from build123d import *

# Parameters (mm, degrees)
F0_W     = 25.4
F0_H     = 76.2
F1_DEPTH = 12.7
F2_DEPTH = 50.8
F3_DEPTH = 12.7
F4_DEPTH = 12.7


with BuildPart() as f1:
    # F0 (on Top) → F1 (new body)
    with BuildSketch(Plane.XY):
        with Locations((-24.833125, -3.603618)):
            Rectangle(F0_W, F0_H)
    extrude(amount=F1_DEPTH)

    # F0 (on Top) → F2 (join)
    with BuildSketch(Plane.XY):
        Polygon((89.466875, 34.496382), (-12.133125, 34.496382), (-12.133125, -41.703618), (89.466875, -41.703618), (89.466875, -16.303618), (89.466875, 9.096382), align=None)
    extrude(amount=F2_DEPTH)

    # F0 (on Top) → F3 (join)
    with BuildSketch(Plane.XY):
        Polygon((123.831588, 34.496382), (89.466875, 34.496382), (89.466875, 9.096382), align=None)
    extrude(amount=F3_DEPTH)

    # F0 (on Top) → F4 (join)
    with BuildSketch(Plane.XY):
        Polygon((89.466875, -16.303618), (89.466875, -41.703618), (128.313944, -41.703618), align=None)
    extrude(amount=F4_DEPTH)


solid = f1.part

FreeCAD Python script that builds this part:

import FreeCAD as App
import Part
import Sketcher

V = App.Vector
Q = App.Units.Quantity

doc = App.newDocument("Part")
params = doc.addObject("Spreadsheet::Sheet", "Params")
for row, (alias, value) in enumerate([
    ("sketch1_width", "1 in"),
    ("sketch1_height", "3 in"),
    ("pad1_length", "0.5 in"),
    ("sketch2_width", "4 in"),
    ("sketch2_height", "3 in"),
    ("pad2_length", "2 in"),
    ("sketch3_height", "1 in"),
    ("pad3_length", "0.5 in"),
    ("sketch4_height", "1 in"),
    ("pad4_length", "0.5 in"),
], start=1):
    params.set(f"A{row}", alias)
    params.set(f"B{row}", "=" + value)
    params.setAlias(f"B{row}", alias)

body = doc.addObject("PartDesign::Body", "Body")

# Sketch on XY plane
sketch1 = doc.addObject("Sketcher::SketchObject", "Sketch")
body.addObject(sketch1)
sketch1.AttachmentSupport = (doc.XY_Plane, [""])
sketch1.MapMode = "FlatFace"
sketch1.addGeometry(Part.LineSegment(V(-37.533125, 34.496382, 0), V(-37.533125, -41.703618, 0)), False)
sketch1.addGeometry(Part.LineSegment(V(-37.533125, -41.703618, 0), V(-12.133125, -41.703618, 0)), False)
sketch1.addGeometry(Part.LineSegment(V(-12.133125, -41.703618, 0), V(-12.133125, 34.496382, 0)), False)
sketch1.addGeometry(Part.LineSegment(V(-12.133125, 34.496382, 0), V(-37.533125, 34.496382, 0)), False)
sketch1.addConstraint(Sketcher.Constraint("Coincident", 0, 2, 1, 1))
sketch1.addConstraint(Sketcher.Constraint("Coincident", 1, 2, 2, 1))
sketch1.addConstraint(Sketcher.Constraint("Coincident", 2, 2, 3, 1))
sketch1.addConstraint(Sketcher.Constraint("Coincident", 3, 2, 0, 1))
sketch1.addConstraint(Sketcher.Constraint("Vertical", 0))
sketch1.addConstraint(Sketcher.Constraint("Horizontal", 1))
sketch1.addConstraint(Sketcher.Constraint("Vertical", 2))
sketch1.addConstraint(Sketcher.Constraint("Horizontal", 3))
sketch1.addConstraint(Sketcher.Constraint("DistanceX", 1, 1, 1, 2, Q("1 in")))
sketch1.addConstraint(Sketcher.Constraint("DistanceY", 0, 2, 0, 1, Q("3 in")))
sketch1.addConstraint(Sketcher.Constraint("DistanceY", -1, 1, 2, 2, Q("34.496382 mm")))
sketch1.addConstraint(Sketcher.Constraint("DistanceX", 0, 2, -1, 1, Q("37.533125 mm")))
sketch1.setExpression("Constraints[8]", "Params.sketch1_width")
sketch1.setExpression("Constraints[9]", "Params.sketch1_height")
pad1 = doc.addObject("PartDesign::Pad", "Pad")
body.addObject(pad1)
pad1.Profile = sketch1
pad1.setExpression("Length", "Params.pad1_length")

# Sketch on XY plane
sketch2 = doc.addObject("Sketcher::SketchObject", "Sketch001")
body.addObject(sketch2)
sketch2.AttachmentSupport = (doc.XY_Plane, [""])
sketch2.MapMode = "FlatFace"
sketch2.addGeometry(Part.LineSegment(V(89.466875, 34.496382, 0), V(-12.133125, 34.496382, 0)), False)
sketch2.addGeometry(Part.LineSegment(V(-12.133125, 34.496382, 0), V(-12.133125, -41.703618, 0)), False)
sketch2.addGeometry(Part.LineSegment(V(-12.133125, -41.703618, 0), V(89.466875, -41.703618, 0)), False)
sketch2.addGeometry(Part.LineSegment(V(89.466875, -41.703618, 0), V(89.466875, 34.496382, 0)), False)
sketch2.addConstraint(Sketcher.Constraint("Coincident", 0, 2, 1, 1))
sketch2.addConstraint(Sketcher.Constraint("Coincident", 1, 2, 2, 1))
sketch2.addConstraint(Sketcher.Constraint("Coincident", 2, 2, 3, 1))
sketch2.addConstraint(Sketcher.Constraint("Coincident", 3, 2, 0, 1))
sketch2.addConstraint(Sketcher.Constraint("Horizontal", 0))
sketch2.addConstraint(Sketcher.Constraint("Vertical", 1))
sketch2.addConstraint(Sketcher.Constraint("Horizontal", 2))
sketch2.addConstraint(Sketcher.Constraint("Vertical", 3))
sketch2.addConstraint(Sketcher.Constraint("DistanceX", 0, 2, 0, 1, Q("4 in")))
sketch2.addConstraint(Sketcher.Constraint("DistanceY", 1, 2, 1, 1, Q("3 in")))
sketch2.addConstraint(Sketcher.Constraint("DistanceY", -1, 1, 0, 2, Q("34.496382 mm")))
sketch2.addConstraint(Sketcher.Constraint("DistanceX", 0, 2, -1, 1, Q("12.133125 mm")))
sketch2.setExpression("Constraints[8]", "Params.sketch2_width")
sketch2.setExpression("Constraints[9]", "Params.sketch2_height")
pad2 = doc.addObject("PartDesign::Pad", "Pad001")
body.addObject(pad2)
pad2.Profile = sketch2
pad2.setExpression("Length", "Params.pad2_length")

# Sketch on XY plane
sketch3 = doc.addObject("Sketcher::SketchObject", "Sketch002")
body.addObject(sketch3)
sketch3.AttachmentSupport = (doc.XY_Plane, [""])
sketch3.MapMode = "FlatFace"
sketch3.addGeometry(Part.LineSegment(V(123.831588, 34.496382, 0), V(89.466875, 34.496382, 0)), False)
sketch3.addGeometry(Part.LineSegment(V(89.466875, 34.496382, 0), V(89.466875, 9.096382, 0)), False)
sketch3.addGeometry(Part.LineSegment(V(89.466875, 9.096382, 0), V(123.831588, 34.496382, 0)), False)
sketch3.addConstraint(Sketcher.Constraint("Coincident", 0, 2, 1, 1))
sketch3.addConstraint(Sketcher.Constraint("Coincident", 1, 2, 2, 1))
sketch3.addConstraint(Sketcher.Constraint("Coincident", 2, 2, 0, 1))
sketch3.addConstraint(Sketcher.Constraint("Horizontal", 0))
sketch3.addConstraint(Sketcher.Constraint("Vertical", 1))
sketch3.addConstraint(Sketcher.Constraint("DistanceY", 1, 2, 1, 1, Q("1 in")))
sketch3.addConstraint(Sketcher.Constraint("DistanceX", 0, 2, 0, 1, Q("34.364713 mm")))
sketch3.addConstraint(Sketcher.Constraint("DistanceY", -1, 1, 0, 2, Q("34.496382 mm")))
sketch3.addConstraint(Sketcher.Constraint("DistanceX", -1, 1, 0, 2, Q("89.466875 mm")))
sketch3.setExpression("Constraints[5]", "Params.sketch3_height")
pad3 = doc.addObject("PartDesign::Pad", "Pad002")
body.addObject(pad3)
pad3.Profile = sketch3
pad3.setExpression("Length", "Params.pad3_length")

# Sketch on XY plane
sketch4 = doc.addObject("Sketcher::SketchObject", "Sketch003")
body.addObject(sketch4)
sketch4.AttachmentSupport = (doc.XY_Plane, [""])
sketch4.MapMode = "FlatFace"
sketch4.addGeometry(Part.LineSegment(V(89.466875, -16.303618, 0), V(89.466875, -41.703618, 0)), False)
sketch4.addGeometry(Part.LineSegment(V(89.466875, -41.703618, 0), V(128.313944, -41.703618, 0)), False)
sketch4.addGeometry(Part.LineSegment(V(128.313944, -41.703618, 0), V(89.466875, -16.303618, 0)), False)
sketch4.addConstraint(Sketcher.Constraint("Coincident", 0, 2, 1, 1))
sketch4.addConstraint(Sketcher.Constraint("Coincident", 1, 2, 2, 1))
sketch4.addConstraint(Sketcher.Constraint("Coincident", 2, 2, 0, 1))
sketch4.addConstraint(Sketcher.Constraint("Vertical", 0))
sketch4.addConstraint(Sketcher.Constraint("Horizontal", 1))
sketch4.addConstraint(Sketcher.Constraint("DistanceY", 0, 2, 0, 1, Q("1 in")))
sketch4.addConstraint(Sketcher.Constraint("DistanceX", 1, 1, 1, 2, Q("38.847069 mm")))
sketch4.addConstraint(Sketcher.Constraint("DistanceY", 2, 2, -1, 1, Q("16.303618 mm")))
sketch4.addConstraint(Sketcher.Constraint("DistanceX", -1, 1, 0, 2, Q("89.466875 mm")))
sketch4.setExpression("Constraints[5]", "Params.sketch4_height")
pad4 = doc.addObject("PartDesign::Pad", "Pad003")
body.addObject(pad4)
pad4.Profile = sketch4
pad4.setExpression("Length", "Params.pad4_length")

doc.recompute()
